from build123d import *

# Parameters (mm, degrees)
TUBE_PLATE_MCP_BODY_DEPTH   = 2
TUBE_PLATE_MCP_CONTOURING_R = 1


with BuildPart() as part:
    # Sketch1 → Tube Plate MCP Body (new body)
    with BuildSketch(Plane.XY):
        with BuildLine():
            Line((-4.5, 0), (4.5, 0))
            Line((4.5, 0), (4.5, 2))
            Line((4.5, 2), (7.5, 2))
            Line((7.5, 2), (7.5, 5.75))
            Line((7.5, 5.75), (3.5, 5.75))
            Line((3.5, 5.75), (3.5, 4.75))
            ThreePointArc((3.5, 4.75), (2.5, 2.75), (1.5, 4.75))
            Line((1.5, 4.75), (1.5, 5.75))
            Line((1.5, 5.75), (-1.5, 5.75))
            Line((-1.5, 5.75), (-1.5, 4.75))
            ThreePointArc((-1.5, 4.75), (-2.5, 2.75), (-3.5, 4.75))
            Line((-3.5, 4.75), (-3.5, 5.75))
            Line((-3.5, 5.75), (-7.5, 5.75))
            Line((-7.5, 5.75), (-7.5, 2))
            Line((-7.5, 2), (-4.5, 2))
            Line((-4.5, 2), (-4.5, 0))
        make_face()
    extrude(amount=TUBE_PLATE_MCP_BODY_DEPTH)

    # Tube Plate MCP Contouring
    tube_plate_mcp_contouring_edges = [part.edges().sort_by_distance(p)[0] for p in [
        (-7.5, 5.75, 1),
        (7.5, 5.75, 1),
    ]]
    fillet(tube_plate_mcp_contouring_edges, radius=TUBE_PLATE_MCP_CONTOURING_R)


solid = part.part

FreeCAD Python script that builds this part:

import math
import FreeCAD as App
import Part
import Sketcher
Q = App.Units.Quantity


def edges_at(feature, points):
    """Names of the edges that pass closest to the given points."""
    edges = feature.Shape.Edges
    near = lambda p: min(range(len(edges)), key=lambda i: edges[i].distToShape(Part.Vertex(*p))[0])
    return sorted({f"Edge{near(p) + 1}" for p in points})

doc = App.newDocument("Part")
body = doc.addObject("PartDesign::Body", "Body")

# Sketch on XY plane
sketch1 = doc.addObject("Sketcher::SketchObject", "Sketch")
body.addObject(sketch1)
sketch1.AttachmentSupport = (doc.XY_Plane, [""])
sketch1.MapMode = "FlatFace"
sketch1.addGeometry([
    Part.LineSegment(App.Vector(-4.5, 0, 0), App.Vector(4.5, 0, 0)),  # 0
    Part.LineSegment(App.Vector(4.5, 0, 0), App.Vector(4.5, 2, 0)),  # 1
    Part.LineSegment(App.Vector(4.5, 2, 0), App.Vector(7.5, 2, 0)),  # 2
    Part.LineSegment(App.Vector(7.5, 2, 0), App.Vector(7.5, 5.75, 0)),  # 3
    Part.LineSegment(App.Vector(7.5, 5.75, 0), App.Vector(3.5, 5.75, 0)),  # 4
    Part.LineSegment(App.Vector(3.5, 5.75, 0), App.Vector(3.5, 4.75, 0)),  # 5
    Part.ArcOfCircle(Part.Circle(App.Vector(2.5, 4, 0), App.Vector(0, 0, 1), 1.25), math.radians(143.130102), math.radians(396.869898)),  # 6
    Part.LineSegment(App.Vector(1.5, 4.75, 0), App.Vector(1.5, 5.75, 0)),  # 7
    Part.LineSegment(App.Vector(1.5, 5.75, 0), App.Vector(-1.5, 5.75, 0)),  # 8
    Part.LineSegment(App.Vector(-1.5, 5.75, 0), App.Vector(-1.5, 4.75, 0)),  # 9
    Part.ArcOfCircle(Part.Circle(App.Vector(-2.5, 4, 0), App.Vector(0, 0, 1), 1.25), math.radians(143.130102), math.radians(396.869898)),  # 10
    Part.LineSegment(App.Vector(-3.5, 4.75, 0), App.Vector(-3.5, 5.75, 0)),  # 11
    Part.LineSegment(App.Vector(-3.5, 5.75, 0), App.Vector(-7.5, 5.75, 0)),  # 12
    Part.LineSegment(App.Vector(-7.5, 5.75, 0), App.Vector(-7.5, 2, 0)),  # 13
    Part.LineSegment(App.Vector(-7.5, 2, 0), App.Vector(-4.5, 2, 0)),  # 14
    Part.LineSegment(App.Vector(-4.5, 2, 0), App.Vector(-4.5, 0, 0)),  # 15
], False)
sketch1.addConstraint([
    Sketcher.Constraint("Coincident", 0, 2, 1, 1),
    Sketcher.Constraint("Coincident", 1, 2, 2, 1),
    Sketcher.Constraint("Coincident", 2, 2, 3, 1),
    Sketcher.Constraint("Coincident", 3, 2, 4, 1),
    Sketcher.Constraint("Coincident", 4, 2, 5, 1),
    Sketcher.Constraint("Coincident", 5, 2, 6, 2),
    Sketcher.Constraint("Coincident", 6, 1, 7, 1),
    Sketcher.Constraint("Coincident", 7, 2, 8, 1),
    Sketcher.Constraint("Coincident", 8, 2, 9, 1),
    Sketcher.Constraint("Coincident", 9, 2, 10, 2),
    Sketcher.Constraint("Coincident", 10, 1, 11, 1),
    Sketcher.Constraint("Coincident", 11, 2, 12, 1),
    Sketcher.Constraint("Coincident", 12, 2, 13, 1),
    Sketcher.Constraint("Coincident", 13, 2, 14, 1),
    Sketcher.Constraint("Coincident", 14, 2, 15, 1),
    Sketcher.Constraint("Coincident", 15, 2, 0, 1),
    Sketcher.Constraint("Horizontal", 0),
    Sketcher.Constraint("Vertical", 1),
    Sketcher.Constraint("Horizontal", 2),
    Sketcher.Constraint("Vertical", 3),
    Sketcher.Constraint("Horizontal", 4),
    Sketcher.Constraint("Vertical", 5),
    Sketcher.Constraint("Vertical", 7),
    Sketcher.Constraint("Horizontal", 8),
    Sketcher.Constraint("Vertical", 9),
    Sketcher.Constraint("Vertical", 11),
    Sketcher.Constraint("Horizontal", 12),
    Sketcher.Constraint("Vertical", 13),
    Sketcher.Constraint("Horizontal", 14),
    Sketcher.Constraint("Vertical", 15),
    Sketcher.Constraint("Equal", 6, 10),
    Sketcher.Constraint("Symmetric", 0, 2, 15, 2, -1, 1),
    Sketcher.Constraint("Symmetric", 6, 3, 10, 3, -2),
    Sketcher.Constraint("Symmetric", 4, 2, 11, 2, -2),
    Sketcher.Constraint("Symmetric", 2, 2, 13, 2, -2),
    Sketcher.Constraint("Horizontal", 5, 2, 6, 1),
    Sketcher.Constraint("Horizontal", 4, 2, 7, 2),
    Sketcher.Constraint("Horizontal", 6, 1, 9, 2),
    Sketcher.Constraint("Equal", 2, 8),
    Sketcher.Constraint("DistanceX", 0, 1, 0, 2, Q("9 mm")),
    Sketcher.Constraint("DistanceX", 2, 1, 2, 2, Q("3 mm")),
    Sketcher.Constraint("DistanceX", 4, 2, 4, 1, Q("4 mm")),
    Sketcher.Constraint("DistanceY", 1, 1, 1, 2, Q("2 mm")),
    Sketcher.Constraint("DistanceY", 5, 2, 5, 1, Q("1 mm")),
    Sketcher.Constraint("Radius", 6, Q("1.25 mm")),
    Sketcher.Constraint("DistanceY", -1, 1, 6, 3, Q("4 mm")),
])
pad1 = doc.addObject("PartDesign::Pad", "Pad")
body.addObject(pad1)
pad1.Profile = sketch1
pad1.Length = 2
doc.recompute()

fillet = doc.addObject("PartDesign::Fillet", "Fillet")
body.addObject(fillet)
fillet.Base = (pad1, edges_at(pad1, [(-7.5, 5.75, 1), (7.5, 5.75, 1)]))
fillet.Radius = 1

doc.recompute()
